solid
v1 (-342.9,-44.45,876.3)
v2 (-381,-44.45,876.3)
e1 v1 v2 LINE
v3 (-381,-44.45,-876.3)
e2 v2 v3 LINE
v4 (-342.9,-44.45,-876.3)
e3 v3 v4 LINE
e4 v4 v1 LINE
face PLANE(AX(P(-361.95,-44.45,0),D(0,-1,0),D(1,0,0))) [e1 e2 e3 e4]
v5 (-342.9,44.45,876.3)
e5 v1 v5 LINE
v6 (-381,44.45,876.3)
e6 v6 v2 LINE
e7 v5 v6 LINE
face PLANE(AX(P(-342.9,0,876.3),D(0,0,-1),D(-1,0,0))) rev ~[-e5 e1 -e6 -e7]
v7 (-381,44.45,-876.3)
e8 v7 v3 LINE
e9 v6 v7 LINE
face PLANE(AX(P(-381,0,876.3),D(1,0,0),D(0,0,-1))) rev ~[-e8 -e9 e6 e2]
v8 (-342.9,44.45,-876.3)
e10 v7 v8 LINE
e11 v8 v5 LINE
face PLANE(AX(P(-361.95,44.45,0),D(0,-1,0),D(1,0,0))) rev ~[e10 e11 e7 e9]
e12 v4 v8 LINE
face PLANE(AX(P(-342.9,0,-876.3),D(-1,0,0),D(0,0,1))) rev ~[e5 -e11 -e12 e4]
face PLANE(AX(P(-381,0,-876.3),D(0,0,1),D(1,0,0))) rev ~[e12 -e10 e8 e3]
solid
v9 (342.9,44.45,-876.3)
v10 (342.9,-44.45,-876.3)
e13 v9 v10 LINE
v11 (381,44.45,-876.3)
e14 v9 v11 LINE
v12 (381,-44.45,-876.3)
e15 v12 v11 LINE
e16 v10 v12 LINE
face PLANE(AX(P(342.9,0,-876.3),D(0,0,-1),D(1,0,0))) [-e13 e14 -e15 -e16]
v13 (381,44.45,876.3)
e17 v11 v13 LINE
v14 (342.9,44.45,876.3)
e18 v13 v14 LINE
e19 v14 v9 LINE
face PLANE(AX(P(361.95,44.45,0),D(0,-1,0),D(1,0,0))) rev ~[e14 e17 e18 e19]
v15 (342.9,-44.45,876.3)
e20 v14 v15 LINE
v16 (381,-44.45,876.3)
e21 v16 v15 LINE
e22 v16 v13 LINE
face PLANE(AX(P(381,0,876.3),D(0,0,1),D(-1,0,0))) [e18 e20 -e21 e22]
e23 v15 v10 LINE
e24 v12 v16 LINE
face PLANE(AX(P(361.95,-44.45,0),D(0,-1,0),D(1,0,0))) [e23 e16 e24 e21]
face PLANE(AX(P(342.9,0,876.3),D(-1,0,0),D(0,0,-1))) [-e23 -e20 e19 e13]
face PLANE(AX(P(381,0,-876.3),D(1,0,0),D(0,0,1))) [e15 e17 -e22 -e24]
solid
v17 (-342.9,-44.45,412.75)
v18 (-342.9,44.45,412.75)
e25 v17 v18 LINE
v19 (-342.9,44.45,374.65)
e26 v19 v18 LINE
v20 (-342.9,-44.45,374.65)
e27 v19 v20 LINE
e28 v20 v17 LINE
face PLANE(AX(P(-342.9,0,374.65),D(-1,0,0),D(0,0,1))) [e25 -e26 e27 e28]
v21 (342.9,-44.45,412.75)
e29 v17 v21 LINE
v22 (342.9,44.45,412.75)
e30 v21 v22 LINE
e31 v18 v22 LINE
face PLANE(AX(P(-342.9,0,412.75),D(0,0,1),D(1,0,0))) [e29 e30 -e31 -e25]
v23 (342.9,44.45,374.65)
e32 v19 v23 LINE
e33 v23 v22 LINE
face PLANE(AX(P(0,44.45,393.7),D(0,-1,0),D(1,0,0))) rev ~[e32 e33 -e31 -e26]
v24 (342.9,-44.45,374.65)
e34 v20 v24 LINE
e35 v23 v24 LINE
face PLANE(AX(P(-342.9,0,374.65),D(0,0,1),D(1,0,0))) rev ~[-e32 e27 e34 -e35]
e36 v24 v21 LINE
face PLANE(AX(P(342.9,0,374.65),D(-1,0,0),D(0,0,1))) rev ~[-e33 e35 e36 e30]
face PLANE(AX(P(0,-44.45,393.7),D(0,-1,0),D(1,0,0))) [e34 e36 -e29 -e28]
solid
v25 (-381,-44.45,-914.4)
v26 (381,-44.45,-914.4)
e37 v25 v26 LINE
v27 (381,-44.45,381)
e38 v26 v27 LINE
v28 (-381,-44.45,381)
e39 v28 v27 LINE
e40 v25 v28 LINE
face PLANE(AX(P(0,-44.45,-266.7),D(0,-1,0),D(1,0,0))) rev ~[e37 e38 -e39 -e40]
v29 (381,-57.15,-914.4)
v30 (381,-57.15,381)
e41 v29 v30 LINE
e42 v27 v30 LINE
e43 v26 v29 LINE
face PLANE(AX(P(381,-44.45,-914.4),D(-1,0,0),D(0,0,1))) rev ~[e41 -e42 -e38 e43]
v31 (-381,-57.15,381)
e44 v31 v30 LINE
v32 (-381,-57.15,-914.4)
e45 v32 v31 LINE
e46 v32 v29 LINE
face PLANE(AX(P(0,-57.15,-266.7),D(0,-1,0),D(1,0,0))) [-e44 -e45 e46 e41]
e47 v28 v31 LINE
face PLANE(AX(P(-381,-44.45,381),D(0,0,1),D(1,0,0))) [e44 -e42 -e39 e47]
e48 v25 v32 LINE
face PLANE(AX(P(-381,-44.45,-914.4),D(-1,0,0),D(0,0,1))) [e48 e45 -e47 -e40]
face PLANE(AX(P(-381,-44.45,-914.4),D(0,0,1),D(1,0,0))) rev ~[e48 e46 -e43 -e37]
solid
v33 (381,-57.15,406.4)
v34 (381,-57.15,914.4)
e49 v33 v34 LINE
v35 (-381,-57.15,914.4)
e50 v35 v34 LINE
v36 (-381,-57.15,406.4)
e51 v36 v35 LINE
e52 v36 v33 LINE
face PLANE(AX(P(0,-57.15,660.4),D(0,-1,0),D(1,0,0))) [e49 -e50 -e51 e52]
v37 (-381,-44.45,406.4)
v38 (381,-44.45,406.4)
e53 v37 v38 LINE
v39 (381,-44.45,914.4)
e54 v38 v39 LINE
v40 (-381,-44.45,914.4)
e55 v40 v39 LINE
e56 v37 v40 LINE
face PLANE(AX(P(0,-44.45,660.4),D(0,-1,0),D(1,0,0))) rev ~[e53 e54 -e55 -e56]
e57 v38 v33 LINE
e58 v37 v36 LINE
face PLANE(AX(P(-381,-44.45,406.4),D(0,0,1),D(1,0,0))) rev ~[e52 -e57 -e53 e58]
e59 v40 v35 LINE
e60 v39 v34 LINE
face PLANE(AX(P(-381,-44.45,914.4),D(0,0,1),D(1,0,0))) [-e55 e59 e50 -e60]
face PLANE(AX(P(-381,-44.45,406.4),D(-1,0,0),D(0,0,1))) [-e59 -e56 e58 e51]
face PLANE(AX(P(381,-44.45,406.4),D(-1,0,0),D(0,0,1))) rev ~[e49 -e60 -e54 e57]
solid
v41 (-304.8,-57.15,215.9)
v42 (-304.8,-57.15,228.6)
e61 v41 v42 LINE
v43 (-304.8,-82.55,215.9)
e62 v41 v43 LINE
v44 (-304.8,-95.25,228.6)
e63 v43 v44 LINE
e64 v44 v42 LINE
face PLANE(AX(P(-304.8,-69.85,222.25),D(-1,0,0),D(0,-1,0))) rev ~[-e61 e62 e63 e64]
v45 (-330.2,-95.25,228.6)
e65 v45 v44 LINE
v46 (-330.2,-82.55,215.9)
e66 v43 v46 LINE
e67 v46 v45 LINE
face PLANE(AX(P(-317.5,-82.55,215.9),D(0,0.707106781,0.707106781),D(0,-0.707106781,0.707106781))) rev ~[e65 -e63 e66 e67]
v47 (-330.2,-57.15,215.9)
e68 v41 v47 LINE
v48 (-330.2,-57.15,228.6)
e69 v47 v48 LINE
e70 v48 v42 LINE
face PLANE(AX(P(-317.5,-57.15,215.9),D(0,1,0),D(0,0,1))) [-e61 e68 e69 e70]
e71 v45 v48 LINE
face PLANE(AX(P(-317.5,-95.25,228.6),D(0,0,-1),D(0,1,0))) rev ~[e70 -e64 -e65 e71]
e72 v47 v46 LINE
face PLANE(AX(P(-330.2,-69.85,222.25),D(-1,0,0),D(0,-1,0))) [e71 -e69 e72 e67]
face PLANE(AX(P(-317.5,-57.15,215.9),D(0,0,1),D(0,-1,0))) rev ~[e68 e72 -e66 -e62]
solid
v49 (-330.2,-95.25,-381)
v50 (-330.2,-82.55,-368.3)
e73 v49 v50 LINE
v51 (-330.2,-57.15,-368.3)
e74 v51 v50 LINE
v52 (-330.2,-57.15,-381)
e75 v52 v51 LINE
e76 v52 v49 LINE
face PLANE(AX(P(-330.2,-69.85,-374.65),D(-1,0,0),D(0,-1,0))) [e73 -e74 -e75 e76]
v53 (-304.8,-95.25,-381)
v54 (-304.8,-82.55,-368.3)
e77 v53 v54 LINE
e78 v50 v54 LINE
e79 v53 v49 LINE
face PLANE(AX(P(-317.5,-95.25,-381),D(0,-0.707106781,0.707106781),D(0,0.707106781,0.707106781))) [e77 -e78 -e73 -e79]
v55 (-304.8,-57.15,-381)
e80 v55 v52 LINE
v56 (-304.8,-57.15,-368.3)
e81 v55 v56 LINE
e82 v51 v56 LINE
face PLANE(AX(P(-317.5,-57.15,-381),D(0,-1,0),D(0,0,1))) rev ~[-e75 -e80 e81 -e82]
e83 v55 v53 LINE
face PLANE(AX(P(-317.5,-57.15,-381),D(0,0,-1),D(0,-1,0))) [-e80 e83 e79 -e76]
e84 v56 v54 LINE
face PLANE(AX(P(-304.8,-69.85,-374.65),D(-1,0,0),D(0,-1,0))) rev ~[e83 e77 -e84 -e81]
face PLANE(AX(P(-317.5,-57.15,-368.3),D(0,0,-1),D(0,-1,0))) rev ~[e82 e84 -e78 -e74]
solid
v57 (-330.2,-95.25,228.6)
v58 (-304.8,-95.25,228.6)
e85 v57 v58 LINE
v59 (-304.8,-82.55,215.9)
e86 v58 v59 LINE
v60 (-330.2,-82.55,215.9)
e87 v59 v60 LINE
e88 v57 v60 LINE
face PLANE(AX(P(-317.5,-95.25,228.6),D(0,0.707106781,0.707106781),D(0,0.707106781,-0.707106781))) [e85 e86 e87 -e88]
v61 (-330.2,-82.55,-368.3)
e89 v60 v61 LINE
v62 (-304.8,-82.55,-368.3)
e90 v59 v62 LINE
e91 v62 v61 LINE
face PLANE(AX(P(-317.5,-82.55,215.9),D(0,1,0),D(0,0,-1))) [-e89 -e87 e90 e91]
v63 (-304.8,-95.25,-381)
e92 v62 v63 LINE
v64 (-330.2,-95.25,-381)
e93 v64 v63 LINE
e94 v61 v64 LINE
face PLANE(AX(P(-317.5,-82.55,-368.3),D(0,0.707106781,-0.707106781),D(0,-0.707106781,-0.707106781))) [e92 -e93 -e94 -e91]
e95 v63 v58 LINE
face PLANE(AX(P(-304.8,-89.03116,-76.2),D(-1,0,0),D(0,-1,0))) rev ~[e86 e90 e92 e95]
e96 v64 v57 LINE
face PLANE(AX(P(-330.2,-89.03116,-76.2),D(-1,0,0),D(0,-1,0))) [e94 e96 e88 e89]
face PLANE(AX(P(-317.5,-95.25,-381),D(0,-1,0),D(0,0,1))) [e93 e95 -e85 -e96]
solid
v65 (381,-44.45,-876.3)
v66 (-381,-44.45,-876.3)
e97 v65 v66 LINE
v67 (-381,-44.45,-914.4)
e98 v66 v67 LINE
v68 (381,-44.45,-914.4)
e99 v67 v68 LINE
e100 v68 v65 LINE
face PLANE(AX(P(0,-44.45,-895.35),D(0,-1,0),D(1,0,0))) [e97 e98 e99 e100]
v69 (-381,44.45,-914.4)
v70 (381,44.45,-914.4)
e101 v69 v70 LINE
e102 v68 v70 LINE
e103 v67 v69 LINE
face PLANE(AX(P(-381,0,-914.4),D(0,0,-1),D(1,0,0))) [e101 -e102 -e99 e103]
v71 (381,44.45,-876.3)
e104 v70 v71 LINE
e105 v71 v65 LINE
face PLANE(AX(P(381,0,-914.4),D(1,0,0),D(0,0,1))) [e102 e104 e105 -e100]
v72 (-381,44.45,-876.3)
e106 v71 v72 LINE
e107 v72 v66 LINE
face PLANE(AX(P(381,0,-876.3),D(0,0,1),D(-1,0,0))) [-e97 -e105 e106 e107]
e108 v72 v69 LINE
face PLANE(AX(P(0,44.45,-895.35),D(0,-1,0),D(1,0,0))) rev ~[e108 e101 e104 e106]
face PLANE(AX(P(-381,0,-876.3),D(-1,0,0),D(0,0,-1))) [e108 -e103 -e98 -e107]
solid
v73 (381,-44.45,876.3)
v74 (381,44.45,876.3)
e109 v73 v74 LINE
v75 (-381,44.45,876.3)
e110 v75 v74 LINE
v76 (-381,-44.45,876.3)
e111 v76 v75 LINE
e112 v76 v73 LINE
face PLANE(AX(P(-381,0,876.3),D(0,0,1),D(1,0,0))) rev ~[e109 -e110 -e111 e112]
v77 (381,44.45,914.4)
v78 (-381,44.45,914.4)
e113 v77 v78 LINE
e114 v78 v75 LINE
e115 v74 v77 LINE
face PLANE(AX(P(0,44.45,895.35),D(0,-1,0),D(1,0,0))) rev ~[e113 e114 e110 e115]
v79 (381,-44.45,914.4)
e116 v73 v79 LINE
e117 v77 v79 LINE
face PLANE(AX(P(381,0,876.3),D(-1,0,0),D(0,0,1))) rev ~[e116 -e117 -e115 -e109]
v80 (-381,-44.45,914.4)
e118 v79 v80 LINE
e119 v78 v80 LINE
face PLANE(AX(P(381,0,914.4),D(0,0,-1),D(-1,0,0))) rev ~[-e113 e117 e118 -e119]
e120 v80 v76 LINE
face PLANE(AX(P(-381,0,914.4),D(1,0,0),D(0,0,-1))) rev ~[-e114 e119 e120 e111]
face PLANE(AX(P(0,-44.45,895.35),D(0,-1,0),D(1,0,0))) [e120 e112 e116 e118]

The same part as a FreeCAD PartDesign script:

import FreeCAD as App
import Part
import Sketcher

V = App.Vector
Q = App.Units.Quantity

doc = App.newDocument("Part")
body = doc.addObject("PartDesign::Body", "Body")
body.AllowCompound = True

# Sketch on XZ plane
sketch1 = body.newObject("Sketcher::SketchObject", "Sketch")
sketch1.AttachmentSupport = (doc.getObject("XZ_Plane"), [""])
sketch1.MapMode = "FlatFace"
sketch1.addGeometry([
    Part.LineSegment(V(381, 876, 0), V(381, 914, 0)),  # 0
    Part.LineSegment(V(381, 914, 0), V(-381, 914, 0)),  # 1
    Part.LineSegment(V(-381, 914, 0), V(-381, 876, 0)),  # 2
    Part.LineSegment(V(-381, 876, 0), V(381, 876, 0)),  # 3
    Part.LineSegment(V(-343, 413, 0), V(-343, 375, 0)),  # 4
    Part.LineSegment(V(-343, 375, 0), V(343, 375, 0)),  # 5
    Part.LineSegment(V(343, 375, 0), V(343, 413, 0)),  # 6
    Part.LineSegment(V(343, 413, 0), V(-343, 413, 0)),  # 7
    Part.LineSegment(V(381, -914, 0), V(381, -876, 0)),  # 8
    Part.LineSegment(V(381, -876, 0), V(-381, -876, 0)),  # 9
    Part.LineSegment(V(-381, -876, 0), V(-381, -914, 0)),  # 10
    Part.LineSegment(V(-381, -914, 0), V(381, -914, 0)),  # 11
], False)
sketch1.addConstraint([
    Sketcher.Constraint("Coincident", 0, 2, 1, 1),
    Sketcher.Constraint("Coincident", 1, 2, 2, 1),
    Sketcher.Constraint("Coincident", 2, 2, 3, 1),
    Sketcher.Constraint("Coincident", 3, 2, 0, 1),
    Sketcher.Constraint("Coincident", 4, 2, 5, 1),
    Sketcher.Constraint("Coincident", 5, 2, 6, 1),
    Sketcher.Constraint("Coincident", 6, 2, 7, 1),
    Sketcher.Constraint("Coincident", 7, 2, 4, 1),
    Sketcher.Constraint("Coincident", 8, 2, 9, 1),
    Sketcher.Constraint("Coincident", 9, 2, 10, 1),
    Sketcher.Constraint("Coincident", 10, 2, 11, 1),
    Sketcher.Constraint("Coincident", 11, 2, 8, 1),
    Sketcher.Constraint("Vertical", 0),
    Sketcher.Constraint("Horizontal", 1),
    Sketcher.Constraint("Vertical", 2),
    Sketcher.Constraint("Horizontal", 3),
    Sketcher.Constraint("Vertical", 4),
    Sketcher.Constraint("Horizontal", 5),
    Sketcher.Constraint("Vertical", 6),
    Sketcher.Constraint("Horizontal", 7),
    Sketcher.Constraint("Vertical", 8),
    Sketcher.Constraint("Horizontal", 9),
    Sketcher.Constraint("Vertical", 10),
    Sketcher.Constraint("Horizontal", 11),
    Sketcher.Constraint("Symmetric", 2, 2, 8, 2, -1, 1),
    Sketcher.Constraint("Symmetric", 0, 2, 10, 2, -1, 1),
    Sketcher.Constraint("Vertical", 3, 2, 8, 2),
    Sketcher.Constraint("Equal", 2, 4),
    Sketcher.Constraint("DistanceX", 1, 2, 1, 1, Q("30 in")),
    Sketcher.Constraint("DistanceX", 5, 1, 5, 2, Q("27 in")),
    Sketcher.Constraint("DistanceY", 0, 1, 0, 2, Q("1.5 in")),
    Sketcher.Constraint("DistanceY", -1, 1, 0, 2, Q("36 in")),
    Sketcher.Constraint("DistanceX", 4, 2, -1, 1, Q("13.5 in")),
    Sketcher.Constraint("DistanceY", -1, 1, 4, 2, Q("14.75 in")),
])
pad1 = body.newObject("PartDesign::Pad", "Pad")
pad1.Profile = sketch1
pad1.Length = Q("3.5 in")
pad1.Midplane = True
body2 = doc.addObject("PartDesign::Body", "Body001")
body2.AllowCompound = True

# Sketch on XZ plane
sketch2 = body2.newObject("Sketcher::SketchObject", "Sketch001")
sketch2.AttachmentSupport = (doc.getObject("XZ_Plane001"), [""])
sketch2.MapMode = "FlatFace"
sketch2.addGeometry([
    Part.LineSegment(V(-343, 876, 0), V(-381, 876, 0)),  # 0
    Part.LineSegment(V(-381, 876, 0), V(-381, -876, 0)),  # 1
    Part.LineSegment(V(-381, -876, 0), V(-343, -876, 0)),  # 2
    Part.LineSegment(V(-343, -876, 0), V(-343, 876, 0)),  # 3
    Part.LineSegment(V(381, 876, 0), V(343, 876, 0)),  # 4
    Part.LineSegment(V(343, 876, 0), V(343, -876, 0)),  # 5
    Part.LineSegment(V(343, -876, 0), V(381, -876, 0)),  # 6
    Part.LineSegment(V(381, -876, 0), V(381, 876, 0)),  # 7
], False)
sketch2.addConstraint([
    Sketcher.Constraint("Coincident", 0, 2, 1, 1),
    Sketcher.Constraint("Coincident", 1, 2, 2, 1),
    Sketcher.Constraint("Coincident", 2, 2, 3, 1),
    Sketcher.Constraint("Coincident", 3, 2, 0, 1),
    Sketcher.Constraint("Coincident", 4, 2, 5, 1),
    Sketcher.Constraint("Coincident", 5, 2, 6, 1),
    Sketcher.Constraint("Coincident", 6, 2, 7, 1),
    Sketcher.Constraint("Coincident", 7, 2, 4, 1),
    Sketcher.Constraint("Horizontal", 0),
    Sketcher.Constraint("Vertical", 1),
    Sketcher.Constraint("Horizontal", 2),
    Sketcher.Constraint("Vertical", 3),
    Sketcher.Constraint("Horizontal", 4),
    Sketcher.Constraint("Vertical", 5),
    Sketcher.Constraint("Horizontal", 6),
    Sketcher.Constraint("Vertical", 7),
    Sketcher.Constraint("Symmetric", 2, 2, 4, 2, -1, 1),
    Sketcher.Constraint("Symmetric", 0, 2, 6, 2, -1, 1),
    Sketcher.Constraint("Horizontal", 3, 2, 4, 2),
    Sketcher.Constraint("DistanceY", 1, 2, 1, 1, Q("69 in")),
    Sketcher.Constraint("DistanceX", 0, 2, 0, 1, Q("1.5 in")),
    Sketcher.Constraint("DistanceX", 0, 2, -1, 1, Q("15 in")),
])
pad2 = body2.newObject("PartDesign::Pad", "Pad001")
pad2.Profile = sketch2
pad2.Length = Q("3.5 in")
pad2.Midplane = True
body3 = doc.addObject("PartDesign::Body", "Body002")

# Sketch on XZ plane
sketch3 = body3.newObject("Sketcher::SketchObject", "Sketch002")
sketch3.AttachmentSupport = (doc.getObject("XZ_Plane002"), [""])
sketch3.MapMode = "FlatFace"
sketch3.AttachmentOffset = App.Placement(V(0, 0, 1.75 * 25.4), App.Rotation())
sketch3.addGeometry([
    Part.LineSegment(V(-381, 914, 0), V(-381, 406, 0)),
    Part.LineSegment(V(-381, 406, 0), V(381, 406, 0)),
    Part.LineSegment(V(381, 406, 0), V(381, 914, 0)),
    Part.LineSegment(V(381, 914, 0), V(-381, 914, 0)),
], False)
sketch3.addConstraint([
    Sketcher.Constraint("Coincident", 0, 2, 1, 1),
    Sketcher.Constraint("Coincident", 1, 2, 2, 1),
    Sketcher.Constraint("Coincident", 2, 2, 3, 1),
    Sketcher.Constraint("Coincident", 3, 2, 0, 1),
    Sketcher.Constraint("Vertical", 0),
    Sketcher.Constraint("Horizontal", 1),
    Sketcher.Constraint("Vertical", 2),
    Sketcher.Constraint("Horizontal", 3),
    Sketcher.Constraint("DistanceX", 1, 1, 1, 2, Q("30 in")),
    Sketcher.Constraint("DistanceY", 0, 2, 0, 1, Q("20 in")),
    Sketcher.Constraint("DistanceX", 0, 2, -1, 1, Q("15 in")),
    Sketcher.Constraint("DistanceY", -1, 1, 0, 2, Q("16 in")),
])
pad3 = body3.newObject("PartDesign::Pad", "Pad002")
pad3.Profile = sketch3
pad3.Length = Q("0.5 in")
body4 = doc.addObject("PartDesign::Body", "Body003")

# Sketch on XZ plane
sketch4 = body4.newObject("Sketcher::SketchObject", "Sketch003")
sketch4.AttachmentSupport = (doc.getObject("XZ_Plane003"), [""])
sketch4.MapMode = "FlatFace"
sketch4.AttachmentOffset = App.Placement(V(0, 0, 1.75 * 25.4), App.Rotation())
sketch4.addGeometry([
    Part.LineSegment(V(-381, 381, 0), V(-381, -914, 0)),
    Part.LineSegment(V(-381, -914, 0), V(381, -914, 0)),
    Part.LineSegment(V(381, -914, 0), V(381, 381, 0)),
    Part.LineSegment(V(381, 381, 0), V(-381, 381, 0)),
], False)
sketch4.addConstraint([
    Sketcher.Constraint("Coincident", 0, 2, 1, 1),
    Sketcher.Constraint("Coincident", 1, 2, 2, 1),
    Sketcher.Constraint("Coincident", 2, 2, 3, 1),
    Sketcher.Constraint("Coincident", 3, 2, 0, 1),
    Sketcher.Constraint("Vertical", 0),
    Sketcher.Constraint("Horizontal", 1),
    Sketcher.Constraint("Vertical", 2),
    Sketcher.Constraint("Horizontal", 3),
    Sketcher.Constraint("DistanceX", 1, 1, 1, 2, Q("30 in")),
    Sketcher.Constraint("DistanceY", 0, 2, 0, 1, Q("51 in")),
    Sketcher.Constraint("DistanceX", 0, 2, -1, 1, Q("15 in")),
    Sketcher.Constraint("DistanceY", 0, 2, -1, 1, Q("36 in")),
])
pad4 = body4.newObject("PartDesign::Pad", "Pad003")
pad4.Profile = sketch4
pad4.Length = Q("0.5 in")
body5 = doc.addObject("PartDesign::Body", "Body004")
body5.AllowCompound = True

# Sketch on YZ plane
sketch5 = body5.newObject("Sketcher::SketchObject", "Sketch004")
sketch5.AttachmentSupport = (doc.getObject("YZ_Plane004"), [""])
sketch5.MapMode = "FlatFace"
sketch5.AttachmentOffset = App.Placement(V(0, 0, -12.5 * 25.4), App.Rotation())
sketch5.addGeometry([
    Part.LineSegment(V(-57, 229, 0), V(-57, 216, 0)),  # 0
    Part.LineSegment(V(-57, 216, 0), V(-83, 216, 0)),  # 1
    Part.LineSegment(V(-83, 216, 0), V(-95, 229, 0)),  # 2
    Part.LineSegment(V(-95, 229, 0), V(-57, 229, 0)),  # 3
    Part.LineSegment(V(-57, -368, 0), V(-57, -381, 0)),  # 4
    Part.LineSegment(V(-57, -381, 0), V(-95, -381, 0)),  # 5
    Part.LineSegment(V(-95, -381, 0), V(-83, -368, 0)),  # 6
    Part.LineSegment(V(-83, -368, 0), V(-57, -368, 0)),  # 7
], False)
sketch5.addConstraint([
    Sketcher.Constraint("Coincident", 0, 2, 1, 1),
    Sketcher.Constraint("Coincident", 1, 2, 2, 1),
    Sketcher.Constraint("Coincident", 2, 2, 3, 1),
    Sketcher.Constraint("Coincident", 3, 2, 0, 1),
    Sketcher.Constraint("Coincident", 4, 2, 5, 1),
    Sketcher.Constraint("Coincident", 5, 2, 6, 1),
    Sketcher.Constraint("Coincident", 6, 2, 7, 1),
    Sketcher.Constraint("Coincident", 7, 2, 4, 1),
    Sketcher.Constraint("Vertical", 0),
    Sketcher.Constraint("Horizontal", 1),
    Sketcher.Constraint("Horizontal", 3),
    Sketcher.Constraint("Vertical", 4),
    Sketcher.Constraint("Horizontal", 5),
    Sketcher.Constraint("Horizontal", 7),
    Sketcher.Constraint("Perpendicular", 2, 6),
    Sketcher.Constraint("Vertical", 3, 2, 4, 2),
    Sketcher.Constraint("Vertical", 2, 2, 5, 2),
    Sketcher.Constraint("Vertical", 1, 2, 6, 2),
    Sketcher.Constraint("Equal", 0, 4),
    Sketcher.Constraint("DistanceX", 1, 2, 1, 1, Q("1 in")),
    Sketcher.Constraint("DistanceX", 3, 1, 3, 2, Q("1.5 in")),
    Sketcher.Constraint("DistanceY", -1, 1, 2, 2, Q("9 in")),
    Sketcher.Constraint("DistanceY", 4, 2, -1, 1, Q("15 in")),
    Sketcher.Constraint("DistanceX", 0, 2, -1, 1, Q("2.25 in")),
])
pad5 = body5.newObject("PartDesign::Pad", "Pad004")
pad5.Profile = sketch5
pad5.Length = Q("1 in")
pad5.Midplane = True
body6 = doc.addObject("PartDesign::Body", "Body005")

# Sketch on YZ plane
sketch6 = body6.newObject("Sketcher::SketchObject", "Sketch005")
sketch6.AttachmentSupport = (doc.getObject("YZ_Plane005"), [""])
sketch6.MapMode = "FlatFace"
sketch6.AttachmentOffset = App.Placement(V(0, 0, -12.5 * 25.4), App.Rotation())
sketch6.addGeometry([
    Part.LineSegment(V(-95, 229, 0), V(-83, 216, 0)),
    Part.LineSegment(V(-83, 216, 0), V(-83, -368, 0)),
    Part.LineSegment(V(-83, -368, 0), V(-95, -381, 0)),
    Part.LineSegment(V(-95, -381, 0), V(-95, 229, 0)),
], False)
sketch6.addConstraint([
    Sketcher.Constraint("Coincident", 0, 2, 1, 1),
    Sketcher.Constraint("Coincident", 1, 2, 2, 1),
    Sketcher.Constraint("Coincident", 2, 2, 3, 1),
    Sketcher.Constraint("Coincident", 3, 2, 0, 1),
    Sketcher.Constraint("Vertical", 1),
    Sketcher.Constraint("Vertical", 3),
    Sketcher.Constraint("Perpendicular", 0, 2),
    Sketcher.Constraint("Equal", 0, 2),
    Sketcher.Constraint("DistanceY", 1, 2, 1, 1, Q("23 in")),
    Sketcher.Constraint("DistanceY", 3, 1, 3, 2, Q("24 in")),
    Sketcher.Constraint("DistanceY", 2, 2, -1, 1, Q("15 in")),
    Sketcher.Constraint("DistanceX", 0, 2, -1, 1, Q("3.25 in")),
])
pad6 = body6.newObject("PartDesign::Pad", "Pad005")
pad6.Profile = sketch6
pad6.Length = Q("1 in")
pad6.Midplane = True

doc.recompute()
